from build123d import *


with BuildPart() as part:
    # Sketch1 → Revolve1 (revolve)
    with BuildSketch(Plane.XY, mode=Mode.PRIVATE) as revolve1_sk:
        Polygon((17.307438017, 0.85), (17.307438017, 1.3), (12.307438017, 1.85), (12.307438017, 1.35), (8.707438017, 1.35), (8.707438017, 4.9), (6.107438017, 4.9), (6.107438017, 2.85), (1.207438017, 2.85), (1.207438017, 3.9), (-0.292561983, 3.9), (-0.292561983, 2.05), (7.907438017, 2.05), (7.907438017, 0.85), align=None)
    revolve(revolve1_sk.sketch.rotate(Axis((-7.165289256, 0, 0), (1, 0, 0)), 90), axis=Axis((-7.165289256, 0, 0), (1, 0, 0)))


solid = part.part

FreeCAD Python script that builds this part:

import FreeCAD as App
import Part
import Sketcher

V = App.Vector

doc = App.newDocument("Part")
body = doc.addObject("PartDesign::Body", "Body")

sketch1 = body.newObject("Sketcher::SketchObject", "Sketch")
sketch1.AttachmentSupport = (doc.getObject("XY_Plane"), [""])
sketch1.MapMode = "FlatFace"
sketch1.addGeometry(Part.LineSegment(V(17.31, 0.85, 0), V(17.31, 1.3, 0)), False)
sketch1.addGeometry(Part.LineSegment(V(17.31, 1.3, 0), V(12.31, 1.85, 0)), False)
sketch1.addGeometry(Part.LineSegment(V(12.31, 1.85, 0), V(12.31, 1.35, 0)), False)
sketch1.addGeometry(Part.LineSegment(V(12.31, 1.35, 0), V(8.71, 1.35, 0)), False)
sketch1.addGeometry(Part.LineSegment(V(8.71, 1.35, 0), V(8.71, 4.9, 0)), False)
sketch1.addGeometry(Part.LineSegment(V(8.71, 4.9, 0), V(6.11, 4.9, 0)), False)
sketch1.addGeometry(Part.LineSegment(V(6.11, 4.9, 0), V(6.11, 2.85, 0)), False)
sketch1.addGeometry(Part.LineSegment(V(6.11, 2.85, 0), V(1.21, 2.85, 0)), False)
sketch1.addGeometry(Part.LineSegment(V(1.21, 2.85, 0), V(1.21, 3.9, 0)), False)
sketch1.addGeometry(Part.LineSegment(V(1.21, 3.9, 0), V(-0.29, 3.9, 0)), False)
sketch1.addGeometry(Part.LineSegment(V(-0.29, 3.9, 0), V(-0.29, 2.05, 0)), False)
sketch1.addGeometry(Part.LineSegment(V(-0.29, 2.05, 0), V(7.91, 2.05, 0)), False)
sketch1.addGeometry(Part.LineSegment(V(7.91, 2.05, 0), V(7.91, 0.85, 0)), False)
sketch1.addGeometry(Part.LineSegment(V(7.91, 0.85, 0), V(17.31, 0.85, 0)), False)
sketch1.addConstraint(Sketcher.Constraint("Coincident", 0, 2, 1, 1))
sketch1.addConstraint(Sketcher.Constraint("Coincident", 1, 2, 2, 1))
sketch1.addConstraint(Sketcher.Constraint("Coincident", 2, 2, 3, 1))
sketch1.addConstraint(Sketcher.Constraint("Coincident", 3, 2, 4, 1))
sketch1.addConstraint(Sketcher.Constraint("Coincident", 4, 2, 5, 1))
sketch1.addConstraint(Sketcher.Constraint("Coincident", 5, 2, 6, 1))
sketch1.addConstraint(Sketcher.Constraint("Coincident", 6, 2, 7, 1))
sketch1.addConstraint(Sketcher.Constraint("Coincident", 7, 2, 8, 1))
sketch1.addConstraint(Sketcher.Constraint("Coincident", 8, 2, 9, 1))
sketch1.addConstraint(Sketcher.Constraint("Coincident", 9, 2, 10, 1))
sketch1.addConstraint(Sketcher.Constraint("Coincident", 10, 2, 11, 1))
sketch1.addConstraint(Sketcher.Constraint("Coincident", 11, 2, 12, 1))
sketch1.addConstraint(Sketcher.Constraint("Coincident", 12, 2, 13, 1))
sketch1.addConstraint(Sketcher.Constraint("Coincident", 13, 2, 0, 1))
sketch1.addConstraint(Sketcher.Constraint("Vertical", 0))
sketch1.addConstraint(Sketcher.Constraint("Vertical", 2))
sketch1.addConstraint(Sketcher.Constraint("Horizontal", 3))
sketch1.addConstraint(Sketcher.Constraint("Vertical", 4))
sketch1.addConstraint(Sketcher.Constraint("Horizontal", 5))
sketch1.addConstraint(Sketcher.Constraint("Vertical", 6))
sketch1.addConstraint(Sketcher.Constraint("Horizontal", 7))
sketch1.addConstraint(Sketcher.Constraint("Vertical", 8))
sketch1.addConstraint(Sketcher.Constraint("Horizontal", 9))
sketch1.addConstraint(Sketcher.Constraint("Vertical", 10))
sketch1.addConstraint(Sketcher.Constraint("Horizontal", 11))
sketch1.addConstraint(Sketcher.Constraint("Vertical", 12))
sketch1.addConstraint(Sketcher.Constraint("Horizontal", 13))
sketch1.addConstraint(Sketcher.Constraint("DistanceX", 3, 2, 3, 1, 3.6))
sketch1.addConstraint(Sketcher.Constraint("DistanceX", 5, 2, 5, 1, 2.6))
sketch1.addConstraint(Sketcher.Constraint("DistanceX", 7, 2, 7, 1, 4.9))
sketch1.addConstraint(Sketcher.Constraint("DistanceX", 9, 2, 9, 1, 1.5))
sketch1.addConstraint(Sketcher.Constraint("DistanceX", 11, 1, 11, 2, 8.2))
sketch1.addConstraint(Sketcher.Constraint("DistanceX", 13, 1, 13, 2, 9.4))
sketch1.addConstraint(Sketcher.Constraint("DistanceY", 2, 2, 2, 1, 0.5))
sketch1.addConstraint(Sketcher.Constraint("DistanceY", 12, 2, 12, 1, 1.2))
sketch1.addConstraint(Sketcher.Constraint("DistanceY", 1, 2, 6, 2, 1.0))
sketch1.addConstraint(Sketcher.Constraint("DistanceY", 8, 2, 5, 2, 1.0))
sketch1.addConstraint(Sketcher.Constraint("DistanceY", 12, 2, 6, 2, 2.0))
sketch1.addConstraint(Sketcher.Constraint("DistanceY", 0, 1, 0, 2, 0.45))
sketch1.addConstraint(Sketcher.Constraint("DistanceY", 4, 1, 4, 2, 3.55))
sketch1.addConstraint(Sketcher.Constraint("DistanceY", -1, 1, 0, 2, 1.3))
sketch1.addConstraint(Sketcher.Constraint("DistanceX", -1, 1, 0, 2, 17.307438))
revolution = body.newObject("PartDesign::Revolution", "Revolution")
revolution.Profile = sketch1
revolution.ReferenceAxis = (sketch1, ["H_Axis"])
revolution.Angle = 360

doc.recompute()
